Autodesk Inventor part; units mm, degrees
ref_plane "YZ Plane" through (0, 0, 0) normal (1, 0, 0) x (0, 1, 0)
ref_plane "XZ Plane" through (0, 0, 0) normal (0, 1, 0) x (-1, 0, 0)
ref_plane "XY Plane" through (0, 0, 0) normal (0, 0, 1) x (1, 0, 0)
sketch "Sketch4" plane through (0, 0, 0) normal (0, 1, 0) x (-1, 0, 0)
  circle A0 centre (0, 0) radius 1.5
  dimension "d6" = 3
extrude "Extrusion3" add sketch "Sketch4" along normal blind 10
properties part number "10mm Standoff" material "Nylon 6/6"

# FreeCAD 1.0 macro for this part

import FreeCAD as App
import Part
import Sketcher

V = App.Vector

doc = App.newDocument("Part")
body = doc.addObject("PartDesign::Body", "Body")

# Sketch on XZ plane
sketch1 = doc.addObject("Sketcher::SketchObject", "Sketch")
body.addObject(sketch1)
sketch1.AttachmentSupport = (doc.XZ_Plane, [""])
sketch1.MapMode = "FlatFace"
sketch1.addGeometry(Part.Circle(V(0, 0, 0), V(0, 0, 1), 1.5), False)
sketch1.addConstraint(Sketcher.Constraint("Coincident", 0, 3, -1, 1))
sketch1.addConstraint(Sketcher.Constraint("Diameter", 0, 3.0))
pad1 = doc.addObject("PartDesign::Pad", "Pad")
body.addObject(pad1)
pad1.Profile = sketch1
pad1.Length = 10
pad1.Reversed = True

doc.recompute()
